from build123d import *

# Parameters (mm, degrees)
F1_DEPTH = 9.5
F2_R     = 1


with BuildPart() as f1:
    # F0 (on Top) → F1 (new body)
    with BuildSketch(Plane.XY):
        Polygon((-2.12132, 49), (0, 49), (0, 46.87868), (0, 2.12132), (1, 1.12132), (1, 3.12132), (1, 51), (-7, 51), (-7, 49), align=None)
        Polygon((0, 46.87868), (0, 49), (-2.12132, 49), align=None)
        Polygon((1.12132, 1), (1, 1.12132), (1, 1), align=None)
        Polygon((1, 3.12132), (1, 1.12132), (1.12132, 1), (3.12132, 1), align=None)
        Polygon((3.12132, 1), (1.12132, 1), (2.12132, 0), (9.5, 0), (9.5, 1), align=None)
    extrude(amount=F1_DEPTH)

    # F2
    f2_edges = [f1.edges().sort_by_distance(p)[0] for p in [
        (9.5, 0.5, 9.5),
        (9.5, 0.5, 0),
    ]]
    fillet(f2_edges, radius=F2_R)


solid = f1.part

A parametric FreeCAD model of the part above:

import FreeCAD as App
import Part
import Sketcher
from FreeCAD import Vector
Q = App.Units.Quantity


def edges_at(feature, points):
    """Names of the edges that pass closest to the given points."""
    edges = feature.Shape.Edges
    near = lambda p: min(range(len(edges)), key=lambda i: edges[i].distToShape(Part.Vertex(*p))[0])
    return sorted({f"Edge{near(p) + 1}" for p in points})

doc = App.newDocument("Part")
body = doc.addObject("PartDesign::Body", "Body")

sketch1 = doc.addObject("Sketcher::SketchObject", "Sketch")
body.addObject(sketch1)
sketch1.AttachmentSupport = (doc.XY_Plane, [""])
sketch1.MapMode = "FlatFace"
sketch1.addGeometry(Part.LineSegment(Vector(0, 46.87868, 0), Vector(0, 2.12132, 0)), False)
sketch1.addGeometry(Part.LineSegment(Vector(0, 2.12132, 0), Vector(1, 1.12132, 0)), False)
sketch1.addGeometry(Part.LineSegment(Vector(1, 1.12132, 0), Vector(1, 1, 0)), False)
sketch1.addGeometry(Part.LineSegment(Vector(1, 1, 0), Vector(1.12132, 1, 0)), False)
sketch1.addGeometry(Part.LineSegment(Vector(1.12132, 1, 0), Vector(2.12132, 0, 0)), False)
sketch1.addGeometry(Part.LineSegment(Vector(2.12132, 0, 0), Vector(9.5, 0, 0)), False)
sketch1.addGeometry(Part.LineSegment(Vector(9.5, 0, 0), Vector(9.5, 1, 0)), False)
sketch1.addGeometry(Part.LineSegment(Vector(9.5, 1, 0), Vector(3.12132, 1, 0)), False)
sketch1.addGeometry(Part.LineSegment(Vector(3.12132, 1, 0), Vector(1, 3.12132, 0)), False)
sketch1.addGeometry(Part.LineSegment(Vector(1, 3.12132, 0), Vector(1, 51, 0)), False)
sketch1.addGeometry(Part.LineSegment(Vector(1, 51, 0), Vector(-7, 51, 0)), False)
sketch1.addGeometry(Part.LineSegment(Vector(-7, 51, 0), Vector(-7, 49, 0)), False)
sketch1.addGeometry(Part.LineSegment(Vector(-7, 49, 0), Vector(-2.12132, 49, 0)), False)
sketch1.addGeometry(Part.LineSegment(Vector(-2.12132, 49, 0), Vector(0, 46.87868, 0)), False)
sketch1.addConstraint(Sketcher.Constraint("Coincident", 0, 2, 1, 1))
sketch1.addConstraint(Sketcher.Constraint("Coincident", 1, 2, 2, 1))
sketch1.addConstraint(Sketcher.Constraint("Coincident", 2, 2, 3, 1))
sketch1.addConstraint(Sketcher.Constraint("Coincident", 3, 2, 4, 1))
sketch1.addConstraint(Sketcher.Constraint("Coincident", 4, 2, 5, 1))
sketch1.addConstraint(Sketcher.Constraint("Coincident", 5, 2, 6, 1))
sketch1.addConstraint(Sketcher.Constraint("Coincident", 6, 2, 7, 1))
sketch1.addConstraint(Sketcher.Constraint("Coincident", 7, 2, 8, 1))
sketch1.addConstraint(Sketcher.Constraint("Coincident", 8, 2, 9, 1))
sketch1.addConstraint(Sketcher.Constraint("Coincident", 9, 2, 10, 1))
sketch1.addConstraint(Sketcher.Constraint("Coincident", 10, 2, 11, 1))
sketch1.addConstraint(Sketcher.Constraint("Coincident", 11, 2, 12, 1))
sketch1.addConstraint(Sketcher.Constraint("Coincident", 12, 2, 13, 1))
sketch1.addConstraint(Sketcher.Constraint("Coincident", 13, 2, 0, 1))
sketch1.addConstraint(Sketcher.Constraint("Vertical", 0))
sketch1.addConstraint(Sketcher.Constraint("Vertical", 2))
sketch1.addConstraint(Sketcher.Constraint("Horizontal", 3))
sketch1.addConstraint(Sketcher.Constraint("Horizontal", 5))
sketch1.addConstraint(Sketcher.Constraint("Vertical", 6))
sketch1.addConstraint(Sketcher.Constraint("Horizontal", 7))
sketch1.addConstraint(Sketcher.Constraint("Vertical", 9))
sketch1.addConstraint(Sketcher.Constraint("Horizontal", 10))
sketch1.addConstraint(Sketcher.Constraint("Vertical", 11))
sketch1.addConstraint(Sketcher.Constraint("Horizontal", 12))
sketch1.addConstraint(Sketcher.Constraint("PointOnObject", 0, 2, -2))
sketch1.addConstraint(Sketcher.Constraint("PointOnObject", 4, 2, -1))
sketch1.addConstraint(Sketcher.Constraint("Parallel", 1, 4))
sketch1.addConstraint(Sketcher.Constraint("Parallel", 4, 8))
sketch1.addConstraint(Sketcher.Constraint("Parallel", 8, 13))
sketch1.addConstraint(Sketcher.Constraint("Horizontal", 3, 2, 6, 2))
sketch1.addConstraint(Sketcher.Constraint("Vertical", 2, 2, 8, 2))
sketch1.addConstraint(Sketcher.Constraint("Equal", 3, 2))
sketch1.addConstraint(Sketcher.Constraint("Equal", 1, 4))
sketch1.addConstraint(Sketcher.Constraint("Equal", 8, 13))
sketch1.addConstraint(Sketcher.Constraint("DistanceX", 10, 2, 10, 1, 8.0))
sketch1.addConstraint(Sketcher.Constraint("DistanceY", 6, 1, 6, 2, 1.0))
sketch1.addConstraint(Sketcher.Constraint("DistanceY", 11, 2, 11, 1, 2.0))
sketch1.addConstraint(Sketcher.Constraint("Angle", 1, Q("-45 deg")))
sketch1.addConstraint(Sketcher.Constraint("Distance", 8, 3.0))
sketch1.addConstraint(Sketcher.Constraint("DistanceY", -1, 1, 9, 2, 51.0))
sketch1.addConstraint(Sketcher.Constraint("DistanceX", 4, 2, 7, 2, 1.0))
sketch1.addConstraint(Sketcher.Constraint("DistanceX", -1, 1, 5, 2, 9.5))
pad1 = doc.addObject("PartDesign::Pad", "Pad")
body.addObject(pad1)
pad1.Profile = sketch1
pad1.Length = 9.5
doc.recompute()

fillet = doc.addObject("PartDesign::Fillet", "Fillet")
body.addObject(fillet)
fillet.Base = (pad1, edges_at(pad1, [(9.5, 0.5, 9.5), (9.5, 0.5, 0)]))
fillet.Radius = 1

doc.recompute()
